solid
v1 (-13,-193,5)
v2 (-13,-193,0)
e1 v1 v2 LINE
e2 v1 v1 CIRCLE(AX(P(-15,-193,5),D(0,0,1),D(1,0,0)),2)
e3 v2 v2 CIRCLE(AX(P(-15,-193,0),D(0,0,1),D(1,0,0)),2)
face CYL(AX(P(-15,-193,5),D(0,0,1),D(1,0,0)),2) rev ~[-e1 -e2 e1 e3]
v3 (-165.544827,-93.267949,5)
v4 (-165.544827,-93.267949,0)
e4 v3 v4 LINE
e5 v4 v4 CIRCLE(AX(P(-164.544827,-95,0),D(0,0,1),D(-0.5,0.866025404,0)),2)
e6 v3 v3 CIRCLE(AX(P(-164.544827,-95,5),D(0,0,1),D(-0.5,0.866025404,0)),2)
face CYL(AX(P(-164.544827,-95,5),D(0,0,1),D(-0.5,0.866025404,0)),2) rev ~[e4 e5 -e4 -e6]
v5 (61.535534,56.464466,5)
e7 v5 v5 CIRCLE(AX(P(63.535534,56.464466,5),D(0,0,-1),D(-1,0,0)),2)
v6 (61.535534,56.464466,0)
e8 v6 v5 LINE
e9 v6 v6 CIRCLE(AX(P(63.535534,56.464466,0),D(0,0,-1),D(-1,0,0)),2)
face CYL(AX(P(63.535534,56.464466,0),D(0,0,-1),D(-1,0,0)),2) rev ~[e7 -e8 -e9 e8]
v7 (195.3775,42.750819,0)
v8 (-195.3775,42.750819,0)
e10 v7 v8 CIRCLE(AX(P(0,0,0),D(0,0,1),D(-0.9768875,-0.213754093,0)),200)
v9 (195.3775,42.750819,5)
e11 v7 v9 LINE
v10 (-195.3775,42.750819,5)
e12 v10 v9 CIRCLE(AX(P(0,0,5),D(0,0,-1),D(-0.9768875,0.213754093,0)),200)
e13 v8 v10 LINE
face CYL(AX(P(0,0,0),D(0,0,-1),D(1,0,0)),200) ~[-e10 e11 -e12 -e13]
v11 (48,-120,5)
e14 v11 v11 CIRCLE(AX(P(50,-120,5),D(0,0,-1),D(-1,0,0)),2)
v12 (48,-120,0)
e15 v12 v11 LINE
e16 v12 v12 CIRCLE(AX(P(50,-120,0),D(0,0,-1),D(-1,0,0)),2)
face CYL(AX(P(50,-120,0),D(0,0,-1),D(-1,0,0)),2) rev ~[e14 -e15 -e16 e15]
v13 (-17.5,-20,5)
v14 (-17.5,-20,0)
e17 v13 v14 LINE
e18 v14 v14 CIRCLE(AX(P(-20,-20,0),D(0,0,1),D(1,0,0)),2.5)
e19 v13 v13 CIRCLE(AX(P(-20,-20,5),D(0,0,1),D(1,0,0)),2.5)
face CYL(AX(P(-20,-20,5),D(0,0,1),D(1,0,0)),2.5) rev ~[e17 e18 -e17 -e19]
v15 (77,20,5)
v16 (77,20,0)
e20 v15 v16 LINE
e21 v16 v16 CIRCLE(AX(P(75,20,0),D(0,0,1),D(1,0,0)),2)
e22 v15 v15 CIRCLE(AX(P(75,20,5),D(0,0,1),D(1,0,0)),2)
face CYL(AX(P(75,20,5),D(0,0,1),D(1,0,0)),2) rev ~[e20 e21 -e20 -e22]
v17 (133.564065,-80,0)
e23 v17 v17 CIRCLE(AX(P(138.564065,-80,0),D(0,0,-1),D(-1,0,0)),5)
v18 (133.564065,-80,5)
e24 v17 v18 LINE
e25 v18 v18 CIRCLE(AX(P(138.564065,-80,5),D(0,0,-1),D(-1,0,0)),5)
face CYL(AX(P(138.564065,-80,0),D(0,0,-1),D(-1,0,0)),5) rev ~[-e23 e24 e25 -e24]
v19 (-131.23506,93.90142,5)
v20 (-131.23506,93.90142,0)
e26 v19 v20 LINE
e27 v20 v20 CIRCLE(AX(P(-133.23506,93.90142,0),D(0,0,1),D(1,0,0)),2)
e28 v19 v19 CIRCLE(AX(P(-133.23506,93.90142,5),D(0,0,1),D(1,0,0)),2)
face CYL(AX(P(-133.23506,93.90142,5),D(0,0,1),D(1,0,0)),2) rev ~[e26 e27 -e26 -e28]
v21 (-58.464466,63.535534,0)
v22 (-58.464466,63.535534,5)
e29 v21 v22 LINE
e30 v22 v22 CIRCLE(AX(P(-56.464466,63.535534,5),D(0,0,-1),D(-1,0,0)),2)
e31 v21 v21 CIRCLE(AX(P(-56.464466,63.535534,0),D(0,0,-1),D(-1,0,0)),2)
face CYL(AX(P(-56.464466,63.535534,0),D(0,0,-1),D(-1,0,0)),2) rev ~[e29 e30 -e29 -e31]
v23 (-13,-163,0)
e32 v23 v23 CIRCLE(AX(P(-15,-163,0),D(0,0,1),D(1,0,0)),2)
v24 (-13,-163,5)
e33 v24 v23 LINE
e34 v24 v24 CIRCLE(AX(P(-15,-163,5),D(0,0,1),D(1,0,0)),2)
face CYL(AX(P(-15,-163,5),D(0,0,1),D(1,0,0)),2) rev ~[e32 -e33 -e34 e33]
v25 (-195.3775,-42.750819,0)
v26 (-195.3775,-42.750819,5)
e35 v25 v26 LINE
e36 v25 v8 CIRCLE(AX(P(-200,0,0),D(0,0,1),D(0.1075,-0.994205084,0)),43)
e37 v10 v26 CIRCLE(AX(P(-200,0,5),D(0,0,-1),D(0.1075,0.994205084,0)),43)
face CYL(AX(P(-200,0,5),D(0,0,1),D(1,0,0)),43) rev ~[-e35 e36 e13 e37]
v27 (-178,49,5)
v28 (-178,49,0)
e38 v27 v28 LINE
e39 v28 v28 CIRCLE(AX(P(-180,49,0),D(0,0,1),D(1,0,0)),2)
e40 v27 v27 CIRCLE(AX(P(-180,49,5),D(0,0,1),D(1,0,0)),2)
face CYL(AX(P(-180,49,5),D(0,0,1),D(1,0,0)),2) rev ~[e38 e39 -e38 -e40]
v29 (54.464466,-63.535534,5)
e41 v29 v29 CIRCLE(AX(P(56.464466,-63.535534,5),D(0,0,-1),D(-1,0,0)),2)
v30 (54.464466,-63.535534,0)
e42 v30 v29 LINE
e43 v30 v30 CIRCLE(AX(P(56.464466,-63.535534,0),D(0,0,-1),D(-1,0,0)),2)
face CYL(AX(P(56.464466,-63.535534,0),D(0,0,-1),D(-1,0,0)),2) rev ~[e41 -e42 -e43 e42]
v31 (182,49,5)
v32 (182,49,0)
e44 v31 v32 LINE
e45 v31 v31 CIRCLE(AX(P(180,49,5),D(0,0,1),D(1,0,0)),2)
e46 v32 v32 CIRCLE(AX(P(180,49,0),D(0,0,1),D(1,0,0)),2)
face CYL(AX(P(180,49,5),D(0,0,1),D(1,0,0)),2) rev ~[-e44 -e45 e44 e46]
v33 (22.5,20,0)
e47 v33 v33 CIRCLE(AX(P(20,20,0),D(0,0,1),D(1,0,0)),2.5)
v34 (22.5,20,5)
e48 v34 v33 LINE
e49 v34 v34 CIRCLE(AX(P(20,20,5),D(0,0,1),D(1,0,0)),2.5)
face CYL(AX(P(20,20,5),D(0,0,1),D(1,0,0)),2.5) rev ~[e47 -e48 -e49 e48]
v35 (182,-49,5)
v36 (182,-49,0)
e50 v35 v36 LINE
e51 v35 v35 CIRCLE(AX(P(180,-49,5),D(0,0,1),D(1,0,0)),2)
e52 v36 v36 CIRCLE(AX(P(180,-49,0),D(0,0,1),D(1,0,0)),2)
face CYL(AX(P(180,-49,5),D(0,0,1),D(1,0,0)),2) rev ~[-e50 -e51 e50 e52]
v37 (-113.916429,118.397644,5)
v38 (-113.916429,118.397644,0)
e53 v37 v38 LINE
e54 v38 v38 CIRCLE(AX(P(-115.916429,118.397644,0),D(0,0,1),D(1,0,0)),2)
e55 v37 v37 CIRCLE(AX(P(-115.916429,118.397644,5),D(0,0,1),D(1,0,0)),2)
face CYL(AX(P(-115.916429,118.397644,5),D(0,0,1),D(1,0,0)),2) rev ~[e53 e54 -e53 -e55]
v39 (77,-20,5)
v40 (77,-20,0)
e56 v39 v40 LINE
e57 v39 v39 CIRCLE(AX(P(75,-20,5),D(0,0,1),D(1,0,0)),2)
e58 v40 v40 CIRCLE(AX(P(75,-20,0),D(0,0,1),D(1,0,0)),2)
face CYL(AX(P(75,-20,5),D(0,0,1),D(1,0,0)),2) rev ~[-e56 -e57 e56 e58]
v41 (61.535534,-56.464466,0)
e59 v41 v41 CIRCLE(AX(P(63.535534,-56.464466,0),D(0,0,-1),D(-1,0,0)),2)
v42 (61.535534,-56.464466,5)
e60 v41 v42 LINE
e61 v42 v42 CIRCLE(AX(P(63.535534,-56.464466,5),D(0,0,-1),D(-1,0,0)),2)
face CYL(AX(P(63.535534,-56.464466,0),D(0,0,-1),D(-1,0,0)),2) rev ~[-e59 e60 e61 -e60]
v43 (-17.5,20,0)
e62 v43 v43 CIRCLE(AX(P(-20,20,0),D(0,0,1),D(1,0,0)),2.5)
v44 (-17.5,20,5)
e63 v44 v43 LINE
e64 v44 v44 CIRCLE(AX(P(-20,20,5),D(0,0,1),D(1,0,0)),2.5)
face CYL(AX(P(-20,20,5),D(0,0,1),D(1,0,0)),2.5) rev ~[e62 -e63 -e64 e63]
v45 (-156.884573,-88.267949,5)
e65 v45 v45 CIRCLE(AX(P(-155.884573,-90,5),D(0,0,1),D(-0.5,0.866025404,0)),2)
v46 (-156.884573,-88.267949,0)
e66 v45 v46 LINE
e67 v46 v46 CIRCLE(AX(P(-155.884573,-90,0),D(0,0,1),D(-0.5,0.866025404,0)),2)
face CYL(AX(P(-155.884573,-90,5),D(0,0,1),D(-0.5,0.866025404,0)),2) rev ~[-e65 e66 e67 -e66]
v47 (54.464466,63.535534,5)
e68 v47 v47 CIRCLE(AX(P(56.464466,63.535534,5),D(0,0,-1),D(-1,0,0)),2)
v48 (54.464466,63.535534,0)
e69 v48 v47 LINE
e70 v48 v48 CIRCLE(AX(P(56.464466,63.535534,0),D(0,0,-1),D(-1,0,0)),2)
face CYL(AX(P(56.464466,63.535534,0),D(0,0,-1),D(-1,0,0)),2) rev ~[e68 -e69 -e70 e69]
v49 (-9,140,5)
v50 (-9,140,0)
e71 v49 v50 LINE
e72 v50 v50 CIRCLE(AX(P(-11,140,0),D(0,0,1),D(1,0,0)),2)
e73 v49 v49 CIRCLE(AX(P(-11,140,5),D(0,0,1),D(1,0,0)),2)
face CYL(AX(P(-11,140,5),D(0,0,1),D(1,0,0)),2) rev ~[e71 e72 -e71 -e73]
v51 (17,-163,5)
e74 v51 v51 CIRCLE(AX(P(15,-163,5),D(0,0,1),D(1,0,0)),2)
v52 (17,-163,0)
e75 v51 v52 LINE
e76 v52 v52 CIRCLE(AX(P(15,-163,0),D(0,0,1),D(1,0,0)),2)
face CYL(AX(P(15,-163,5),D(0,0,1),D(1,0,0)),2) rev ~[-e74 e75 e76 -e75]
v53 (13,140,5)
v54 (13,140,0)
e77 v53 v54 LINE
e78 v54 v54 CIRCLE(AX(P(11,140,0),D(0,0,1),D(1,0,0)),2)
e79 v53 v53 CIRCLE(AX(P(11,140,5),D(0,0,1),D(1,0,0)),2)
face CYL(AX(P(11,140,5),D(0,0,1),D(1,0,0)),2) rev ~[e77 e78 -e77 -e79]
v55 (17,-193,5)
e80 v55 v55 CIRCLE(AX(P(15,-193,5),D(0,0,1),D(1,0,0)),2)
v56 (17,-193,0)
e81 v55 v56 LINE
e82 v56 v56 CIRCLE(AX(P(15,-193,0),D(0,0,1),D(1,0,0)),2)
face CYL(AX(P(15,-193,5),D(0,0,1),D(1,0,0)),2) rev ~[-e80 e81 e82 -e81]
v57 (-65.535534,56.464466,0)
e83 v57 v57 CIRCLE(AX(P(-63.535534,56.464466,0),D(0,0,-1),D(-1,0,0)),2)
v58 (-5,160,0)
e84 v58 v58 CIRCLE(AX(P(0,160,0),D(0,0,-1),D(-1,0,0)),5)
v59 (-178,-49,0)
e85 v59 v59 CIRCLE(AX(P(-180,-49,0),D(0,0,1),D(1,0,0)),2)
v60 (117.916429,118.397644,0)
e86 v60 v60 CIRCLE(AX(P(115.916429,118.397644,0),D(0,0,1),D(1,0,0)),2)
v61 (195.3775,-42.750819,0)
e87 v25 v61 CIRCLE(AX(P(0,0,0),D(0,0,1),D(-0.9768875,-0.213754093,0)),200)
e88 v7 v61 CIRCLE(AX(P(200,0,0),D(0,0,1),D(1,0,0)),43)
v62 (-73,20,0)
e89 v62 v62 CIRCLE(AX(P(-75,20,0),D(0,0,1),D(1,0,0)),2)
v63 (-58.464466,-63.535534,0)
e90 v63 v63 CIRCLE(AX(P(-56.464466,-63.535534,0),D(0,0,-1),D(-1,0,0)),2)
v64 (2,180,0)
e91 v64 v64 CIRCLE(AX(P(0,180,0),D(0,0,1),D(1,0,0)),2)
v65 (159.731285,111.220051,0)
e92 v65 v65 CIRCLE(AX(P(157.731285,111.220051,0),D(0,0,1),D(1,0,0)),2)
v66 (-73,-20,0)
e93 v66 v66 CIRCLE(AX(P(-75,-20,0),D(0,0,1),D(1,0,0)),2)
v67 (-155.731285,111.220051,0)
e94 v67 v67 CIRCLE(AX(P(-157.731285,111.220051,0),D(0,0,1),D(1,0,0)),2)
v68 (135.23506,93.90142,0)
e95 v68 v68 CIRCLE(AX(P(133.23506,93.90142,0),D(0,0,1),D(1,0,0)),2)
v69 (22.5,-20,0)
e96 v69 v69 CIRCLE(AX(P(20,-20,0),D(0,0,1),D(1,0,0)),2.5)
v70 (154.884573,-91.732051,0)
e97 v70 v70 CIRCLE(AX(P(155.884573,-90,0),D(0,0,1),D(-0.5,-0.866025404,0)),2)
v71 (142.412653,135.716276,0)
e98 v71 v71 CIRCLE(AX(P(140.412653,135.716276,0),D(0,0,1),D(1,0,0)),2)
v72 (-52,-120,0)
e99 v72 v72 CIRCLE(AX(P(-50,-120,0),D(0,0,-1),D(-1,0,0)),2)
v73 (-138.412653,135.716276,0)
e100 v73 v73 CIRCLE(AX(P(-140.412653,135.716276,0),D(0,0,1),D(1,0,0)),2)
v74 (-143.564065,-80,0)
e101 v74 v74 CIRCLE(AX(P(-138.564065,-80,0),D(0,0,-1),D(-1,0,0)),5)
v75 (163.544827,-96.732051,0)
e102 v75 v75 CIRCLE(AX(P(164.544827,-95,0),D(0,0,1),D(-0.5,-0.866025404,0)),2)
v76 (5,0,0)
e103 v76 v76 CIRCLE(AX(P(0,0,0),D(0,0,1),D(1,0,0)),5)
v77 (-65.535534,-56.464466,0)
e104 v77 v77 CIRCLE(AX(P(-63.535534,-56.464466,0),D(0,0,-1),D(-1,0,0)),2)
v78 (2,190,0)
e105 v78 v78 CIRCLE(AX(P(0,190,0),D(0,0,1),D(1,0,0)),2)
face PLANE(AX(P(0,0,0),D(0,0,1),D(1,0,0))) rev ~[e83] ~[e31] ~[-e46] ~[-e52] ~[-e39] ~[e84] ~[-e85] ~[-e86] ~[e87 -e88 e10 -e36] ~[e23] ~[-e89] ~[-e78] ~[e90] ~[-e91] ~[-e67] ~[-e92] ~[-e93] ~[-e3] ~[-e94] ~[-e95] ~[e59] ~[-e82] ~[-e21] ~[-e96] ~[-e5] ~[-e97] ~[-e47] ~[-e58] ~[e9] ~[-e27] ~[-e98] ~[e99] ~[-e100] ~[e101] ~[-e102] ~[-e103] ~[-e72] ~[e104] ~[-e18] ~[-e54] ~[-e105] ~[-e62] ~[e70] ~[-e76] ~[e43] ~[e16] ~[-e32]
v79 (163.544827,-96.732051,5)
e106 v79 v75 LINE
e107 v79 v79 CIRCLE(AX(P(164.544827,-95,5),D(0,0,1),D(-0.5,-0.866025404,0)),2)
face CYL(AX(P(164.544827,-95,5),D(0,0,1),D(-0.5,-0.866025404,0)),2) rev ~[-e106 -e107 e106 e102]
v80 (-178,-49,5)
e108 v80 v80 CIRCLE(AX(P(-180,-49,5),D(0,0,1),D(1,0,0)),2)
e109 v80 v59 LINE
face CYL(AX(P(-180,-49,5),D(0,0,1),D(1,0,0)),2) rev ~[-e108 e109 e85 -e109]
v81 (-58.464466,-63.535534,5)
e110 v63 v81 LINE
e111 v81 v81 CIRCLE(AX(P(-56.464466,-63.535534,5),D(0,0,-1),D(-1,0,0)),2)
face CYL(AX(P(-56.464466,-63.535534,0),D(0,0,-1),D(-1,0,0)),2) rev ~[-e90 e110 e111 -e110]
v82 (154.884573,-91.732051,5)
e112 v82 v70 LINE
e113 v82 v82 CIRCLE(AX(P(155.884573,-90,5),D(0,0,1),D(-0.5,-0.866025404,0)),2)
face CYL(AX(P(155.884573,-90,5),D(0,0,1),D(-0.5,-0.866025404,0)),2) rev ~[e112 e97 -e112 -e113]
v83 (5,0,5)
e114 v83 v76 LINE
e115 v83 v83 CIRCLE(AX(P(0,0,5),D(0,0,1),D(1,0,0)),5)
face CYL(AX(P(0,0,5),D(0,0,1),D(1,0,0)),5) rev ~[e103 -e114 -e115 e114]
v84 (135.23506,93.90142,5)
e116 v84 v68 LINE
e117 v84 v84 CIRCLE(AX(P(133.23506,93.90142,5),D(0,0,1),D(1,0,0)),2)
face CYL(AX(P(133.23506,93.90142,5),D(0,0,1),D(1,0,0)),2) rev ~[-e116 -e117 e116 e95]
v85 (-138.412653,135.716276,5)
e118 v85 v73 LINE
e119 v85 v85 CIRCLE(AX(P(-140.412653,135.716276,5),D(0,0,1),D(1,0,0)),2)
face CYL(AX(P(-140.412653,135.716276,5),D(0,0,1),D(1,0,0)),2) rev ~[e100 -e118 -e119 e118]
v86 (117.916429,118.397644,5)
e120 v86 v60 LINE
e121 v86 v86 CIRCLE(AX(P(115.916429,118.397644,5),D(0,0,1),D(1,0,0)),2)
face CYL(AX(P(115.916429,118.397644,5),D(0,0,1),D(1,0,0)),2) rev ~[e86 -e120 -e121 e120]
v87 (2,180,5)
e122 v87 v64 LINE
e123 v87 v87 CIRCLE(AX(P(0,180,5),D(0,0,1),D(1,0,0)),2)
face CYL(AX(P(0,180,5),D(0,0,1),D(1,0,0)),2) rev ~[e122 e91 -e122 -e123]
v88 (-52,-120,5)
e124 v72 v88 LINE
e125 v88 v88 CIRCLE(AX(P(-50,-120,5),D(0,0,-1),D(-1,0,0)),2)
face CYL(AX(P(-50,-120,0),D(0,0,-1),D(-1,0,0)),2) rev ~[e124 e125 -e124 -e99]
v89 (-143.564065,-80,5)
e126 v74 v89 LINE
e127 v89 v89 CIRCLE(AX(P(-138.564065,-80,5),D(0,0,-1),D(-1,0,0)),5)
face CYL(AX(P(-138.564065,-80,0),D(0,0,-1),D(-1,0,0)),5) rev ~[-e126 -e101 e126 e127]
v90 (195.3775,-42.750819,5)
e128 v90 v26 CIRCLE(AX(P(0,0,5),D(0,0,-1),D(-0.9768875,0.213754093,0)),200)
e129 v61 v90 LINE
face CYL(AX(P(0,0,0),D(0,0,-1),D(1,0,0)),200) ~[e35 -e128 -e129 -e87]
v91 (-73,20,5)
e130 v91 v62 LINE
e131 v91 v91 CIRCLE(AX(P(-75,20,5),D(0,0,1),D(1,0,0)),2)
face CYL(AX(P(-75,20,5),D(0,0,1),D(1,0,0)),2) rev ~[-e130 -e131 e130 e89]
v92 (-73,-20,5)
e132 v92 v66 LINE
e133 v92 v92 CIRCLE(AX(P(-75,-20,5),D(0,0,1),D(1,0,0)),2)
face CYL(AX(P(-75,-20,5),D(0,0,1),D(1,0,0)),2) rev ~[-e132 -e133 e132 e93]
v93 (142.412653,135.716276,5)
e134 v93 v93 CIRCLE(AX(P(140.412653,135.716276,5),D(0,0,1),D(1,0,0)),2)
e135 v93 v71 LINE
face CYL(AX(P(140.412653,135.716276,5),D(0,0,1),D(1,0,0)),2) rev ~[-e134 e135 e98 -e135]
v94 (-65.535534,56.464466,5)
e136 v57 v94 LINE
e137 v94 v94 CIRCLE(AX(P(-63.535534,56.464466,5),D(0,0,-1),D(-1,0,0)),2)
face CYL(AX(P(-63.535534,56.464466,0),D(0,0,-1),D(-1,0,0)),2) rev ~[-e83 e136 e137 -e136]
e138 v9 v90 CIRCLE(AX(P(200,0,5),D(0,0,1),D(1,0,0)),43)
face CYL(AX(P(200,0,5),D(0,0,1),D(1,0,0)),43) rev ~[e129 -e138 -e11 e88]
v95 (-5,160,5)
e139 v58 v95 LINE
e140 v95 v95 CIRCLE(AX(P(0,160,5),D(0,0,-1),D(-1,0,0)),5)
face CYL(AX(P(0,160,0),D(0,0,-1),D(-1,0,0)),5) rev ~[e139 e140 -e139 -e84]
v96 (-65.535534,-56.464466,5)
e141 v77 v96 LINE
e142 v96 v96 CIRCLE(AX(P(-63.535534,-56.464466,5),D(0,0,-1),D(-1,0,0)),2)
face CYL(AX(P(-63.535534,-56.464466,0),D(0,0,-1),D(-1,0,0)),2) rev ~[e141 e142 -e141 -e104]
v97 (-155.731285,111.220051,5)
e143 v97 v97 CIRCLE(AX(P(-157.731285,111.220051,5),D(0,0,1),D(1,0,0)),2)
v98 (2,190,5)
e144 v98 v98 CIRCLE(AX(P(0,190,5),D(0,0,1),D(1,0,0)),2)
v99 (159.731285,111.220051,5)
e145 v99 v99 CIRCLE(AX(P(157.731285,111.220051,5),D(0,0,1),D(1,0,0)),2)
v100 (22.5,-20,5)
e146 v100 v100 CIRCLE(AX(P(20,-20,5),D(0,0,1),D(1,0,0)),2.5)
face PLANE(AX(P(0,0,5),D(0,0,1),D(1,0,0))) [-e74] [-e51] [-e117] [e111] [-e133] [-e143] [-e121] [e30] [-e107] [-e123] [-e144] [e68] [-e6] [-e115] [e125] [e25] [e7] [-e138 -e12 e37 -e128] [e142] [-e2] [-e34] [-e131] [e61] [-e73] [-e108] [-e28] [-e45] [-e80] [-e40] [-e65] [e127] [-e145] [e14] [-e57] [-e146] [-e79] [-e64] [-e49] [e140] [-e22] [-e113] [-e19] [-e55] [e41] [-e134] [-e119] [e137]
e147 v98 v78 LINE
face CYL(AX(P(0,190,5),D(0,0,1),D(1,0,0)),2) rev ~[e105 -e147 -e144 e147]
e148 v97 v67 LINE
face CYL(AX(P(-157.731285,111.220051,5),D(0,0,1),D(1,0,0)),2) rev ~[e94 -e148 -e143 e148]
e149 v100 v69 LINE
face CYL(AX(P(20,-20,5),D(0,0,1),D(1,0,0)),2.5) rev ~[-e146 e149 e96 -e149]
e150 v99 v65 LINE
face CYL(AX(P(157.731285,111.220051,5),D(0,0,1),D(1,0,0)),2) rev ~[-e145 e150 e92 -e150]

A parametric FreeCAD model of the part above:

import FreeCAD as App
import Part
import Sketcher
Q = App.Units.Quantity

doc = App.newDocument("Part")
body = doc.addObject("PartDesign::Body", "Body")

sketch1 = body.newObject("Sketcher::SketchObject", "Sketch")
sketch1.AttachmentSupport = (doc.getObject("XY_Plane"), [""])
sketch1.MapMode = "FlatFace"
sketch1.addGeometry(Part.Circle(App.Vector(0, 0, 0), App.Vector(0, 0, 1), 200), False)
sketch1.addConstraint(Sketcher.Constraint("Coincident", 0, 3, -1, 1))
sketch1.addConstraint(Sketcher.Constraint("Diameter", 0, Q("400 mm")))
pad1 = body.newObject("PartDesign::Pad", "Pad")
pad1.Profile = sketch1
pad1.Length = 5

sketch2 = body.newObject("Sketcher::SketchObject", "Sketch001")
sketch2.AttachmentSupport = (doc.getObject("XY_Plane"), [""])
sketch2.MapMode = "FlatFace"
sketch2.AttachmentOffset = App.Placement(App.Vector(0, 0, 5), App.Rotation())
sketch2.addGeometry(Part.Circle(App.Vector(0, 190, 0), App.Vector(0, 0, 1), 2), False)
sketch2.addGeometry(Part.Circle(App.Vector(0, 180, 0), App.Vector(0, 0, 1), 2), False)
sketch2.addConstraint(Sketcher.Constraint("Equal", 0, 1))
sketch2.addConstraint(Sketcher.Constraint("PointOnObject", 0, 3, -2))
sketch2.addConstraint(Sketcher.Constraint("PointOnObject", 1, 3, -2))
sketch2.addConstraint(Sketcher.Constraint("Diameter", 0, Q("4 mm")))
sketch2.addConstraint(Sketcher.Constraint("DistanceY", -1, 1, 0, 3, Q("190 mm")))
sketch2.addConstraint(Sketcher.Constraint("DistanceY", -1, 1, 1, 3, Q("180 mm")))
pocket1 = body.newObject("PartDesign::Pocket", "Pocket")
pocket1.Profile = sketch2
pocket1.Length = 5
doc.recompute()

polarpattern = body.newObject("PartDesign::PolarPattern", "PolarPattern")
polarpattern.Originals = [pocket1]
polarpattern.Axis = (doc.getObject("Z_Axis"), [""])
polarpattern.Angle = 360
polarpattern.Occurrences = 3
body.Tip = polarpattern

sketch3 = body.newObject("Sketcher::SketchObject", "Sketch002")
sketch3.AttachmentSupport = (doc.getObject("XY_Plane"), [""])
sketch3.MapMode = "FlatFace"
sketch3.AttachmentOffset = App.Placement(App.Vector(0, 0, 5), App.Rotation())
sketch3.addGeometry(Part.Circle(App.Vector(-200, 0, 0), App.Vector(0, 0, 1), 43), False)
sketch3.addConstraint(Sketcher.Constraint("PointOnObject", 0, 3, -1))
sketch3.addConstraint(Sketcher.Constraint("Diameter", 0, Q("86 mm")))
sketch3.addConstraint(Sketcher.Constraint("DistanceX", 0, 3, -1, 1, Q("200 mm")))
pocket2 = body.newObject("PartDesign::Pocket", "Pocket001")
pocket2.Profile = sketch3
pocket2.Type = "UpToFirst"

sketch4 = body.newObject("Sketcher::SketchObject", "Sketch003")
sketch4.AttachmentSupport = (doc.getObject("XY_Plane"), [""])
sketch4.MapMode = "FlatFace"
sketch4.AttachmentOffset = App.Placement(App.Vector(0, 0, 5), App.Rotation())
sketch4.addGeometry(Part.Circle(App.Vector(200, 0, 0), App.Vector(0, 0, 1), 43), False)
sketch4.addConstraint(Sketcher.Constraint("PointOnObject", 0, 3, -1))
sketch4.addConstraint(Sketcher.Constraint("Diameter", 0, Q("86 mm")))
sketch4.addConstraint(Sketcher.Constraint("DistanceX", -1, 1, 0, 3, Q("200 mm")))
pocket3 = body.newObject("PartDesign::Pocket", "Pocket002")
pocket3.Profile = sketch4
pocket3.Type = "UpToFirst"

sketch5 = body.newObject("Sketcher::SketchObject", "Sketch004")
sketch5.AttachmentSupport = (doc.getObject("XY_Plane"), [""])
sketch5.MapMode = "FlatFace"
sketch5.AttachmentOffset = App.Placement(App.Vector(0, 0, 5), App.Rotation())
sketch5.addGeometry(Part.Circle(App.Vector(180, 49, 0), App.Vector(0, 0, 1), 2), False)
sketch5.addConstraint(Sketcher.Constraint("Diameter", 0, Q("4 mm")))
sketch5.addConstraint(Sketcher.Constraint("DistanceX", -1, 1, 0, 3, Q("180 mm")))
sketch5.addConstraint(Sketcher.Constraint("DistanceY", -1, 1, 0, 3, Q("49 mm")))
pocket4 = body.newObject("PartDesign::Pocket", "Pocket003")
pocket4.Profile = sketch5
pocket4.Type = "UpToFirst"

sketch6 = body.newObject("Sketcher::SketchObject", "Sketch005")
sketch6.AttachmentSupport = (doc.getObject("XY_Plane"), [""])
sketch6.MapMode = "FlatFace"
sketch6.AttachmentOffset = App.Placement(App.Vector(0, 0, 5), App.Rotation())
sketch6.addGeometry(Part.Circle(App.Vector(180, -49, 0), App.Vector(0, 0, 1), 2), False)
sketch6.addConstraint(Sketcher.Constraint("Diameter", 0, Q("4 mm")))
sketch6.addConstraint(Sketcher.Constraint("DistanceX", -1, 1, 0, 3, Q("180 mm")))
sketch6.addConstraint(Sketcher.Constraint("DistanceY", 0, 3, -1, 1, Q("49 mm")))
pocket5 = body.newObject("PartDesign::Pocket", "Pocket004")
pocket5.Profile = sketch6
pocket5.Type = "UpToFirst"

sketch7 = body.newObject("Sketcher::SketchObject", "Sketch006")
sketch7.AttachmentSupport = (doc.getObject("XY_Plane"), [""])
sketch7.MapMode = "FlatFace"
sketch7.AttachmentOffset = App.Placement(App.Vector(0, 0, 5), App.Rotation())
sketch7.addGeometry(Part.Circle(App.Vector(-180, -49, 0), App.Vector(0, 0, 1), 2), False)
sketch7.addConstraint(Sketcher.Constraint("Diameter", 0, Q("4 mm")))
sketch7.addConstraint(Sketcher.Constraint("DistanceX", 0, 3, -1, 1, Q("180 mm")))
sketch7.addConstraint(Sketcher.Constraint("DistanceY", 0, 3, -1, 1, Q("49 mm")))
pocket6 = body.newObject("PartDesign::Pocket", "Pocket005")
pocket6.Profile = sketch7
pocket6.Type = "UpToFirst"

sketch8 = body.newObject("Sketcher::SketchObject", "Sketch007")
sketch8.AttachmentSupport = (doc.getObject("XY_Plane"), [""])
sketch8.MapMode = "FlatFace"
sketch8.AttachmentOffset = App.Placement(App.Vector(0, 0, 5), App.Rotation())
sketch8.addGeometry(Part.Circle(App.Vector(-180, 49, 0), App.Vector(0, 0, 1), 2), False)
sketch8.addConstraint(Sketcher.Constraint("Diameter", 0, Q("4 mm")))
sketch8.addConstraint(Sketcher.Constraint("DistanceX", 0, 3, -1, 1, Q("180 mm")))
sketch8.addConstraint(Sketcher.Constraint("DistanceY", -1, 1, 0, 3, Q("49 mm")))
pocket7 = body.newObject("PartDesign::Pocket", "Pocket006")
pocket7.Profile = sketch8
pocket7.Type = "UpToFirst"

sketch9 = body.newObject("Sketcher::SketchObject", "Sketch008")
sketch9.AttachmentSupport = (doc.getObject("XY_Plane"), [""])
sketch9.MapMode = "FlatFace"
sketch9.AttachmentOffset = App.Placement(App.Vector(0, 0, 5), App.Rotation())
sketch9.addGeometry(Part.Circle(App.Vector(-20, -20, 0), App.Vector(0, 0, 1), 2.5), False)
sketch9.addConstraint(Sketcher.Constraint("Diameter", 0, Q("5 mm")))
sketch9.addConstraint(Sketcher.Constraint("DistanceX", 0, 3, -1, 1, Q("20 mm")))
sketch9.addConstraint(Sketcher.Constraint("DistanceY", 0, 3, -1, 1, Q("20 mm")))
pocket8 = body.newObject("PartDesign::Pocket", "Pocket007")
pocket8.Profile = sketch9
pocket8.Type = "UpToFirst"

sketch10 = body.newObject("Sketcher::SketchObject", "Sketch009")
sketch10.AttachmentSupport = (doc.getObject("XY_Plane"), [""])
sketch10.MapMode = "FlatFace"
sketch10.AttachmentOffset = App.Placement(App.Vector(0, 0, 5), App.Rotation())
sketch10.addGeometry(Part.Circle(App.Vector(-20, 20, 0), App.Vector(0, 0, 1), 2.5), False)
sketch10.addConstraint(Sketcher.Constraint("Diameter", 0, Q("5 mm")))
sketch10.addConstraint(Sketcher.Constraint("DistanceX", 0, 3, -1, 1, Q("20 mm")))
sketch10.addConstraint(Sketcher.Constraint("DistanceY", -1, 1, 0, 3, Q("20 mm")))
pocket9 = body.newObject("PartDesign::Pocket", "Pocket008")
pocket9.Profile = sketch10
pocket9.Type = "UpToFirst"

sketch11 = body.newObject("Sketcher::SketchObject", "Sketch010")
sketch11.AttachmentSupport = (doc.getObject("XY_Plane"), [""])
sketch11.MapMode = "FlatFace"
sketch11.AttachmentOffset = App.Placement(App.Vector(0, 0, 5), App.Rotation())
sketch11.addGeometry(Part.Circle(App.Vector(0, 0, 0), App.Vector(0, 0, 1), 5), False)
sketch11.addConstraint(Sketcher.Constraint("Coincident", 0, 3, -1, 1))
sketch11.addConstraint(Sketcher.Constraint("Diameter", 0, Q("10 mm")))
pocket10 = body.newObject("PartDesign::Pocket", "Pocket009")
pocket10.Profile = sketch11
pocket10.Type = "UpToFirst"

sketch12 = body.newObject("Sketcher::SketchObject", "Sketch011")
sketch12.AttachmentSupport = (doc.getObject("XY_Plane"), [""])
sketch12.MapMode = "FlatFace"
sketch12.AttachmentOffset = App.Placement(App.Vector(0, 0, 5), App.Rotation())
sketch12.addGeometry(Part.Circle(App.Vector(20, -20, 0), App.Vector(0, 0, 1), 2.5), False)
sketch12.addConstraint(Sketcher.Constraint("Diameter", 0, Q("5 mm")))
sketch12.addConstraint(Sketcher.Constraint("DistanceX", -1, 1, 0, 3, Q("20 mm")))
sketch12.addConstraint(Sketcher.Constraint("DistanceY", 0, 3, -1, 1, Q("20 mm")))
pocket11 = body.newObject("PartDesign::Pocket", "Pocket010")
pocket11.Profile = sketch12
pocket11.Type = "UpToFirst"

sketch13 = body.newObject("Sketcher::SketchObject", "Sketch012")
sketch13.AttachmentSupport = (doc.getObject("XY_Plane"), [""])
sketch13.MapMode = "FlatFace"
sketch13.AttachmentOffset = App.Placement(App.Vector(0, 0, 5), App.Rotation())
sketch13.addGeometry(Part.Circle(App.Vector(20, 20, 0), App.Vector(0, 0, 1), 2.5), False)
sketch13.addConstraint(Sketcher.Constraint("Diameter", 0, Q("5 mm")))
sketch13.addConstraint(Sketcher.Constraint("DistanceX", -1, 1, 0, 3, Q("20 mm")))
sketch13.addConstraint(Sketcher.Constraint("DistanceY", -1, 1, 0, 3, Q("20 mm")))
pocket12 = body.newObject("PartDesign::Pocket", "Pocket011")
pocket12.Profile = sketch13
pocket12.Type = "UpToFirst"

sketch14 = body.newObject("Sketcher::SketchObject", "Sketch013")
sketch14.AttachmentSupport = (doc.getObject("XY_Plane"), [""])
sketch14.MapMode = "FlatFace"
sketch14.AttachmentOffset = App.Placement(App.Vector(0, 0, 5), App.Rotation())
sketch14.addGeometry(Part.Circle(App.Vector(-15, -193, 0), App.Vector(0, 0, 1), 2), False)
sketch14.addConstraint(Sketcher.Constraint("Diameter", 0, Q("4 mm")))
sketch14.addConstraint(Sketcher.Constraint("DistanceX", 0, 3, -1, 1, Q("15 mm")))
sketch14.addConstraint(Sketcher.Constraint("DistanceY", 0, 3, -1, 1, Q("193 mm")))
pocket13 = body.newObject("PartDesign::Pocket", "Pocket012")
pocket13.Profile = sketch14
pocket13.Type = "UpToFirst"

sketch15 = body.newObject("Sketcher::SketchObject", "Sketch014")
sketch15.AttachmentSupport = (doc.getObject("XY_Plane"), [""])
sketch15.MapMode = "FlatFace"
sketch15.AttachmentOffset = App.Placement(App.Vector(0, 0, 5), App.Rotation())
sketch15.addGeometry(Part.Circle(App.Vector(15, -193, 0), App.Vector(0, 0, 1), 2), False)
sketch15.addConstraint(Sketcher.Constraint("Diameter", 0, Q("4 mm")))
sketch15.addConstraint(Sketcher.Constraint("DistanceX", -1, 1, 0, 3, Q("15 mm")))
sketch15.addConstraint(Sketcher.Constraint("DistanceY", 0, 3, -1, 1, Q("193 mm")))
pocket14 = body.newObject("PartDesign::Pocket", "Pocket013")
pocket14.Profile = sketch15
pocket14.Type = "UpToFirst"

sketch16 = body.newObject("Sketcher::SketchObject", "Sketch015")
sketch16.AttachmentSupport = (doc.getObject("XY_Plane"), [""])
sketch16.MapMode = "FlatFace"
sketch16.AttachmentOffset = App.Placement(App.Vector(0, 0, 5), App.Rotation())
sketch16.addGeometry(Part.Circle(App.Vector(15, -163, 0), App.Vector(0, 0, 1), 2), False)
sketch16.addConstraint(Sketcher.Constraint("Diameter", 0, Q("4 mm")))
sketch16.addConstraint(Sketcher.Constraint("DistanceX", -1, 1, 0, 3, Q("15 mm")))
sketch16.addConstraint(Sketcher.Constraint("DistanceY", 0, 3, -1, 1, Q("163 mm")))
pocket15 = body.newObject("PartDesign::Pocket", "Pocket014")
pocket15.Profile = sketch16
pocket15.Type = "UpToFirst"

sketch17 = body.newObject("Sketcher::SketchObject", "Sketch016")
sketch17.AttachmentSupport = (doc.getObject("XY_Plane"), [""])
sketch17.MapMode = "FlatFace"
sketch17.AttachmentOffset = App.Placement(App.Vector(0, 0, 5), App.Rotation())
sketch17.addGeometry(Part.Circle(App.Vector(-15, -163, 0), App.Vector(0, 0, 1), 2), False)
sketch17.addConstraint(Sketcher.Constraint("Diameter", 0, Q("4 mm")))
sketch17.addConstraint(Sketcher.Constraint("DistanceX", 0, 3, -1, 1, Q("15 mm")))
sketch17.addConstraint(Sketcher.Constraint("DistanceY", 0, 3, -1, 1, Q("163 mm")))
pocket16 = body.newObject("PartDesign::Pocket", "Pocket015")
pocket16.Profile = sketch17
pocket16.Type = "UpToFirst"

sketch18 = body.newObject("Sketcher::SketchObject", "Sketch017")
sketch18.AttachmentSupport = (doc.getObject("XY_Plane"), [""])
sketch18.MapMode = "FlatFace"
sketch18.AttachmentOffset = App.Placement(App.Vector(0, 0, 5), App.Rotation())
sketch18.addGeometry(Part.Circle(App.Vector(133.23506, 93.90142, 0), App.Vector(0, 0, 1), 2), False)
sketch18.addConstraint(Sketcher.Constraint("Diameter", 0, Q("4 mm")))
sketch18.addConstraint(Sketcher.Constraint("DistanceX", -1, 1, 0, 3, Q("133.23506 mm")))
sketch18.addConstraint(Sketcher.Constraint("DistanceY", -1, 1, 0, 3, Q("93.90142 mm")))
pocket17 = body.newObject("PartDesign::Pocket", "Pocket016")
pocket17.Profile = sketch18
pocket17.Type = "UpToFirst"

sketch19 = body.newObject("Sketcher::SketchObject", "Sketch018")
sketch19.AttachmentSupport = (doc.getObject("XY_Plane"), [""])
sketch19.MapMode = "FlatFace"
sketch19.AttachmentOffset = App.Placement(App.Vector(0, 0, 5), App.Rotation())
sketch19.addGeometry(Part.Circle(App.Vector(115.916429, 118.397644, 0), App.Vector(0, 0, 1), 2), False)
sketch19.addConstraint(Sketcher.Constraint("Diameter", 0, Q("4 mm")))
sketch19.addConstraint(Sketcher.Constraint("DistanceX", -1, 1, 0, 3, Q("115.916429 mm")))
sketch19.addConstraint(Sketcher.Constraint("DistanceY", -1, 1, 0, 3, Q("118.397644 mm")))
pocket18 = body.newObject("PartDesign::Pocket", "Pocket017")
pocket18.Profile = sketch19
pocket18.Type = "UpToFirst"

sketch20 = body.newObject("Sketcher::SketchObject", "Sketch019")
sketch20.AttachmentSupport = (doc.getObject("XY_Plane"), [""])
sketch20.MapMode = "FlatFace"
sketch20.AttachmentOffset = App.Placement(App.Vector(0, 0, 5), App.Rotation())
sketch20.addGeometry(Part.Circle(App.Vector(140.412653, 135.716276, 0), App.Vector(0, 0, 1), 2), False)
sketch20.addConstraint(Sketcher.Constraint("Diameter", 0, Q("4 mm")))
sketch20.addConstraint(Sketcher.Constraint("DistanceX", -1, 1, 0, 3, Q("140.412653 mm")))
sketch20.addConstraint(Sketcher.Constraint("DistanceY", -1, 1, 0, 3, Q("135.716276 mm")))
pocket19 = body.newObject("PartDesign::Pocket", "Pocket018")
pocket19.Profile = sketch20
pocket19.Type = "UpToFirst"

sketch21 = body.newObject("Sketcher::SketchObject", "Sketch020")
sketch21.AttachmentSupport = (doc.getObject("XY_Plane"), [""])
sketch21.MapMode = "FlatFace"
sketch21.AttachmentOffset = App.Placement(App.Vector(0, 0, 5), App.Rotation())
sketch21.addGeometry(Part.Circle(App.Vector(157.731285, 111.220051, 0), App.Vector(0, 0, 1), 2), False)
sketch21.addConstraint(Sketcher.Constraint("Diameter", 0, Q("4 mm")))
sketch21.addConstraint(Sketcher.Constraint("DistanceY", -1, 1, 0, 3, Q("111.220051 mm")))
sketch21.addConstraint(Sketcher.Constraint("DistanceX", -1, 1, 0, 3, Q("157.731285 mm")))
pocket20 = body.newObject("PartDesign::Pocket", "Pocket019")
pocket20.Profile = sketch21
pocket20.Type = "UpToFirst"

sketch22 = body.newObject("Sketcher::SketchObject", "Sketch021")
sketch22.AttachmentSupport = (doc.getObject("XY_Plane"), [""])
sketch22.MapMode = "FlatFace"
sketch22.AttachmentOffset = App.Placement(App.Vector(0, 0, 5), App.Rotation())
sketch22.addGeometry(Part.Circle(App.Vector(-157.731285, 111.220051, 0), App.Vector(0, 0, 1), 2), False)
sketch22.addConstraint(Sketcher.Constraint("Diameter", 0, Q("4 mm")))
sketch22.addConstraint(Sketcher.Constraint("DistanceY", -1, 1, 0, 3, Q("111.220051 mm")))
sketch22.addConstraint(Sketcher.Constraint("DistanceX", 0, 3, -1, 1, Q("157.731285 mm")))
pocket21 = body.newObject("PartDesign::Pocket", "Pocket020")
pocket21.Profile = sketch22
pocket21.Type = "UpToFirst"

sketch23 = body.newObject("Sketcher::SketchObject", "Sketch022")
sketch23.AttachmentSupport = (doc.getObject("XY_Plane"), [""])
sketch23.MapMode = "FlatFace"
sketch23.AttachmentOffset = App.Placement(App.Vector(0, 0, 5), App.Rotation())
sketch23.addGeometry(Part.Circle(App.Vector(-133.23506, 93.90142, 0), App.Vector(0, 0, 1), 2), False)
sketch23.addConstraint(Sketcher.Constraint("Diameter", 0, Q("4 mm")))
sketch23.addConstraint(Sketcher.Constraint("DistanceX", 0, 3, -1, 1, Q("133.23506 mm")))
sketch23.addConstraint(Sketcher.Constraint("DistanceY", -1, 1, 0, 3, Q("93.90142 mm")))
pocket22 = body.newObject("PartDesign::Pocket", "Pocket021")
pocket22.Profile = sketch23
pocket22.Type = "UpToFirst"

sketch24 = body.newObject("Sketcher::SketchObject", "Sketch023")
sketch24.AttachmentSupport = (doc.getObject("XY_Plane"), [""])
sketch24.MapMode = "FlatFace"
sketch24.AttachmentOffset = App.Placement(App.Vector(0, 0, 5), App.Rotation())
sketch24.addGeometry(Part.Circle(App.Vector(-115.916429, 118.397644, 0), App.Vector(0, 0, 1), 2), False)
sketch24.addConstraint(Sketcher.Constraint("Diameter", 0, Q("4 mm")))
sketch24.addConstraint(Sketcher.Constraint("DistanceX", 0, 3, -1, 1, Q("115.916429 mm")))
sketch24.addConstraint(Sketcher.Constraint("DistanceY", -1, 1, 0, 3, Q("118.397644 mm")))
pocket23 = body.newObject("PartDesign::Pocket", "Pocket022")
pocket23.Profile = sketch24
pocket23.Type = "UpToFirst"

sketch25 = body.newObject("Sketcher::SketchObject", "Sketch024")
sketch25.AttachmentSupport = (doc.getObject("XY_Plane"), [""])
sketch25.MapMode = "FlatFace"
sketch25.AttachmentOffset = App.Placement(App.Vector(0, 0, 5), App.Rotation())
sketch25.addGeometry(Part.Circle(App.Vector(-140.412653, 135.716276, 0), App.Vector(0, 0, 1), 2), False)
sketch25.addConstraint(Sketcher.Constraint("Diameter", 0, Q("4 mm")))
sketch25.addConstraint(Sketcher.Constraint("DistanceX", 0, 3, -1, 1, Q("140.412653 mm")))
sketch25.addConstraint(Sketcher.Constraint("DistanceY", -1, 1, 0, 3, Q("135.716276 mm")))
pocket24 = body.newObject("PartDesign::Pocket", "Pocket023")
pocket24.Profile = sketch25
pocket24.Type = "UpToFirst"

sketch26 = body.newObject("Sketcher::SketchObject", "Sketch025")
sketch26.AttachmentSupport = (doc.getObject("XY_Plane"), [""])
sketch26.MapMode = "FlatFace"
sketch26.AttachmentOffset = App.Placement(App.Vector(0, 0, 5), App.Rotation())
sketch26.addGeometry(Part.Circle(App.Vector(-11, 140, 0), App.Vector(0, 0, 1), 2), False)
sketch26.addConstraint(Sketcher.Constraint("Diameter", 0, Q("4 mm")))
sketch26.addConstraint(Sketcher.Constraint("DistanceX", 0, 3, -1, 1, Q("11 mm")))
sketch26.addConstraint(Sketcher.Constraint("DistanceY", -1, 1, 0, 3, Q("140 mm")))
pocket25 = body.newObject("PartDesign::Pocket", "Pocket024")
pocket25.Profile = sketch26
pocket25.Type = "UpToFirst"

sketch27 = body.newObject("Sketcher::SketchObject", "Sketch026")
sketch27.AttachmentSupport = (doc.getObject("XY_Plane"), [""])
sketch27.MapMode = "FlatFace"
sketch27.AttachmentOffset = App.Placement(App.Vector(0, 0, 5), App.Rotation())
sketch27.addGeometry(Part.Circle(App.Vector(11, 140, 0), App.Vector(0, 0, 1), 2), False)
sketch27.addConstraint(Sketcher.Constraint("Diameter", 0, Q("4 mm")))
sketch27.addConstraint(Sketcher.Constraint("DistanceX", -1, 1, 0, 3, Q("11 mm")))
sketch27.addConstraint(Sketcher.Constraint("DistanceY", -1, 1, 0, 3, Q("140 mm")))
pocket26 = body.newObject("PartDesign::Pocket", "Pocket025")
pocket26.Profile = sketch27
pocket26.Type = "UpToFirst"

sketch28 = body.newObject("Sketcher::SketchObject", "Sketch027")
sketch28.AttachmentSupport = (doc.getObject("XY_Plane"), [""])
sketch28.MapMode = "FlatFace"
sketch28.AttachmentOffset = App.Placement(App.Vector(0, 0, 5), App.Rotation())
sketch28.addGeometry(Part.Circle(App.Vector(75, -20, 0), App.Vector(0, 0, 1), 2), False)
sketch28.addConstraint(Sketcher.Constraint("Diameter", 0, Q("4 mm")))
sketch28.addConstraint(Sketcher.Constraint("DistanceX", -1, 1, 0, 3, Q("75 mm")))
sketch28.addConstraint(Sketcher.Constraint("DistanceY", 0, 3, -1, 1, Q("20 mm")))
pocket27 = body.newObject("PartDesign::Pocket", "Pocket026")
pocket27.Profile = sketch28
pocket27.Type = "UpToFirst"

sketch29 = body.newObject("Sketcher::SketchObject", "Sketch028")
sketch29.AttachmentSupport = (doc.getObject("XY_Plane"), [""])
sketch29.MapMode = "FlatFace"
sketch29.AttachmentOffset = App.Placement(App.Vector(0, 0, 5), App.Rotation())
sketch29.addGeometry(Part.Circle(App.Vector(75, 20, 0), App.Vector(0, 0, 1), 2), False)
sketch29.addConstraint(Sketcher.Constraint("Diameter", 0, Q("4 mm")))
sketch29.addConstraint(Sketcher.Constraint("DistanceX", -1, 1, 0, 3, Q("75 mm")))
sketch29.addConstraint(Sketcher.Constraint("DistanceY", -1, 1, 0, 3, Q("20 mm")))
pocket28 = body.newObject("PartDesign::Pocket", "Pocket027")
pocket28.Profile = sketch29
pocket28.Type = "UpToFirst"

sketch30 = body.newObject("Sketcher::SketchObject", "Sketch029")
sketch30.AttachmentSupport = (doc.getObject("XY_Plane"), [""])
sketch30.MapMode = "FlatFace"
sketch30.AttachmentOffset = App.Placement(App.Vector(0, 0, 5), App.Rotation())
sketch30.addGeometry(Part.Circle(App.Vector(-75, -20, 0), App.Vector(0, 0, 1), 2), False)
sketch30.addConstraint(Sketcher.Constraint("Diameter", 0, Q("4 mm")))
sketch30.addConstraint(Sketcher.Constraint("DistanceX", 0, 3, -1, 1, Q("75 mm")))
sketch30.addConstraint(Sketcher.Constraint("DistanceY", 0, 3, -1, 1, Q("20 mm")))
pocket29 = body.newObject("PartDesign::Pocket", "Pocket028")
pocket29.Profile = sketch30
pocket29.Type = "UpToFirst"

sketch31 = body.newObject("Sketcher::SketchObject", "Sketch030")
sketch31.AttachmentSupport = (doc.getObject("XY_Plane"), [""])
sketch31.MapMode = "FlatFace"
sketch31.AttachmentOffset = App.Placement(App.Vector(0, 0, 5), App.Rotation())
sketch31.addGeometry(Part.Circle(App.Vector(-75, 20, 0), App.Vector(0, 0, 1), 2), False)
sketch31.addConstraint(Sketcher.Constraint("Diameter", 0, Q("4 mm")))
sketch31.addConstraint(Sketcher.Constraint("DistanceX", 0, 3, -1, 1, Q("75 mm")))
sketch31.addConstraint(Sketcher.Constraint("DistanceY", -1, 1, 0, 3, Q("20 mm")))
pocket30 = body.newObject("PartDesign::Pocket", "Pocket029")
pocket30.Profile = sketch31
pocket30.Type = "UpToFirst"

sketch32 = body.newObject("Sketcher::SketchObject", "Sketch031")
sketch32.AttachmentSupport = (doc.getObject("XY_Plane"), [""])
sketch32.MapMode = "FlatFace"
sketch32.addGeometry(Part.Circle(App.Vector(50, -120, 0), App.Vector(0, 0, 1), 2), False)
sketch32.addConstraint(Sketcher.Constraint("Diameter", 0, Q("4 mm")))
sketch32.addConstraint(Sketcher.Constraint("DistanceX", -1, 1, 0, 3, Q("50 mm")))
sketch32.addConstraint(Sketcher.Constraint("DistanceY", 0, 3, -1, 1, Q("120 mm")))
pocket31 = body.newObject("PartDesign::Pocket", "Pocket030")
pocket31.Profile = sketch32
pocket31.Type = "UpToFirst"
pocket31.Reversed = True

sketch33 = body.newObject("Sketcher::SketchObject", "Sketch032")
sketch33.AttachmentSupport = (doc.getObject("XY_Plane"), [""])
sketch33.MapMode = "FlatFace"
sketch33.addGeometry(Part.Circle(App.Vector(-50, -120, 0), App.Vector(0, 0, 1), 2), False)
sketch33.addConstraint(Sketcher.Constraint("Diameter", 0, Q("4 mm")))
sketch33.addConstraint(Sketcher.Constraint("DistanceX", 0, 3, -1, 1, Q("50 mm")))
sketch33.addConstraint(Sketcher.Constraint("DistanceY", 0, 3, -1, 1, Q("120 mm")))
pocket32 = body.newObject("PartDesign::Pocket", "Pocket031")
pocket32.Profile = sketch33
pocket32.Type = "UpToFirst"
pocket32.Reversed = True

sketch34 = body.newObject("Sketcher::SketchObject", "Sketch033")
sketch34.AttachmentSupport = (doc.getObject("XY_Plane"), [""])
sketch34.MapMode = "FlatFace"
sketch34.addGeometry(Part.Circle(App.Vector(63.535534, -56.464466, 0), App.Vector(0, 0, 1), 2), False)
sketch34.addConstraint(Sketcher.Constraint("Diameter", 0, Q("4 mm")))
sketch34.addConstraint(Sketcher.Constraint("DistanceX", -1, 1, 0, 3, Q("63.535534 mm")))
sketch34.addConstraint(Sketcher.Constraint("DistanceY", 0, 3, -1, 1, Q("56.464466 mm")))
pocket33 = body.newObject("PartDesign::Pocket", "Pocket032")
pocket33.Profile = sketch34
pocket33.Type = "UpToFirst"
pocket33.Reversed = True

sketch35 = body.newObject("Sketcher::SketchObject", "Sketch034")
sketch35.AttachmentSupport = (doc.getObject("XY_Plane"), [""])
sketch35.MapMode = "FlatFace"
sketch35.addGeometry(Part.Circle(App.Vector(56.464466, -63.535534, 0), App.Vector(0, 0, 1), 2), False)
sketch35.addConstraint(Sketcher.Constraint("Diameter", 0, Q("4 mm")))
sketch35.addConstraint(Sketcher.Constraint("DistanceX", -1, 1, 0, 3, Q("56.464466 mm")))
sketch35.addConstraint(Sketcher.Constraint("DistanceY", 0, 3, -1, 1, Q("63.535534 mm")))
pocket34 = body.newObject("PartDesign::Pocket", "Pocket033")
pocket34.Profile = sketch35
pocket34.Type = "UpToFirst"
pocket34.Reversed = True

sketch36 = body.newObject("Sketcher::SketchObject", "Sketch035")
sketch36.AttachmentSupport = (doc.getObject("XY_Plane"), [""])
sketch36.MapMode = "FlatFace"
sketch36.addGeometry(Part.Circle(App.Vector(-63.535534, -56.464466, 0), App.Vector(0, 0, 1), 2), False)
sketch36.addConstraint(Sketcher.Constraint("Diameter", 0, Q("4 mm")))
sketch36.addConstraint(Sketcher.Constraint("DistanceX", 0, 3, -1, 1, Q("63.535534 mm")))
sketch36.addConstraint(Sketcher.Constraint("DistanceY", 0, 3, -1, 1, Q("56.464466 mm")))
pocket35 = body.newObject("PartDesign::Pocket", "Pocket034")
pocket35.Profile = sketch36
pocket35.Type = "UpToFirst"
pocket35.Reversed = True

sketch37 = body.newObject("Sketcher::SketchObject", "Sketch036")
sketch37.AttachmentSupport = (doc.getObject("XY_Plane"), [""])
sketch37.MapMode = "FlatFace"
sketch37.addGeometry(Part.Circle(App.Vector(-56.464466, -63.535534, 0), App.Vector(0, 0, 1), 2), False)
sketch37.addConstraint(Sketcher.Constraint("Diameter", 0, Q("4 mm")))
sketch37.addConstraint(Sketcher.Constraint("DistanceX", 0, 3, -1, 1, Q("56.464466 mm")))
sketch37.addConstraint(Sketcher.Constraint("DistanceY", 0, 3, -1, 1, Q("63.535534 mm")))
pocket36 = body.newObject("PartDesign::Pocket", "Pocket035")
pocket36.Profile = sketch37
pocket36.Type = "UpToFirst"
pocket36.Reversed = True

sketch38 = body.newObject("Sketcher::SketchObject", "Sketch037")
sketch38.AttachmentSupport = (doc.getObject("XY_Plane"), [""])
sketch38.MapMode = "FlatFace"
sketch38.addGeometry(Part.Circle(App.Vector(-63.535534, 56.464466, 0), App.Vector(0, 0, 1), 2), False)
sketch38.addConstraint(Sketcher.Constraint("Diameter", 0, Q("4 mm")))
sketch38.addConstraint(Sketcher.Constraint("DistanceX", 0, 3, -1, 1, Q("63.535534 mm")))
sketch38.addConstraint(Sketcher.Constraint("DistanceY", -1, 1, 0, 3, Q("56.464466 mm")))
pocket37 = body.newObject("PartDesign::Pocket", "Pocket036")
pocket37.Profile = sketch38
pocket37.Type = "UpToFirst"
pocket37.Reversed = True

sketch39 = body.newObject("Sketcher::SketchObject", "Sketch038")
sketch39.AttachmentSupport = (doc.getObject("XY_Plane"), [""])
sketch39.MapMode = "FlatFace"
sketch39.addGeometry(Part.Circle(App.Vector(-56.464466, 63.535534, 0), App.Vector(0, 0, 1), 2), False)
sketch39.addConstraint(Sketcher.Constraint("Diameter", 0, Q("4 mm")))
sketch39.addConstraint(Sketcher.Constraint("DistanceX", 0, 3, -1, 1, Q("56.464466 mm")))
sketch39.addConstraint(Sketcher.Constraint("DistanceY", -1, 1, 0, 3, Q("63.535534 mm")))
pocket38 = body.newObject("PartDesign::Pocket", "Pocket037")
pocket38.Profile = sketch39
pocket38.Type = "UpToFirst"
pocket38.Reversed = True

sketch40 = body.newObject("Sketcher::SketchObject", "Sketch039")
sketch40.AttachmentSupport = (doc.getObject("XY_Plane"), [""])
sketch40.MapMode = "FlatFace"
sketch40.addGeometry(Part.Circle(App.Vector(56.464466, 63.535534, 0), App.Vector(0, 0, 1), 2), False)
sketch40.addConstraint(Sketcher.Constraint("Diameter", 0, Q("4 mm")))
sketch40.addConstraint(Sketcher.Constraint("DistanceX", -1, 1, 0, 3, Q("56.464466 mm")))
sketch40.addConstraint(Sketcher.Constraint("DistanceY", -1, 1, 0, 3, Q("63.535534 mm")))
pocket39 = body.newObject("PartDesign::Pocket", "Pocket038")
pocket39.Profile = sketch40
pocket39.Type = "UpToFirst"
pocket39.Reversed = True

sketch41 = body.newObject("Sketcher::SketchObject", "Sketch040")
sketch41.AttachmentSupport = (doc.getObject("XY_Plane"), [""])
sketch41.MapMode = "FlatFace"
sketch41.addGeometry(Part.Circle(App.Vector(63.535534, 56.464466, 0), App.Vector(0, 0, 1), 2), False)
sketch41.addConstraint(Sketcher.Constraint("Diameter", 0, Q("4 mm")))
sketch41.addConstraint(Sketcher.Constraint("DistanceX", -1, 1, 0, 3, Q("63.535534 mm")))
sketch41.addConstraint(Sketcher.Constraint("DistanceY", -1, 1, 0, 3, Q("56.464466 mm")))
pocket40 = body.newObject("PartDesign::Pocket", "Pocket039")
pocket40.Profile = sketch41
pocket40.Type = "UpToFirst"
pocket40.Reversed = True

sketch42 = body.newObject("Sketcher::SketchObject", "Sketch041")
sketch42.AttachmentSupport = (doc.getObject("XY_Plane"), [""])
sketch42.MapMode = "FlatFace"
sketch42.addGeometry(Part.Circle(App.Vector(138.564065, -80, 0), App.Vector(0, 0, 1), 5), False)
sketch42.addConstraint(Sketcher.Constraint("Diameter", 0, Q("10 mm")))
sketch42.addConstraint(Sketcher.Constraint("DistanceY", 0, 3, -1, 1, Q("80 mm")))
sketch42.addConstraint(Sketcher.Constraint("DistanceX", -1, 1, 0, 3, Q("138.564065 mm")))
pocket41 = body.newObject("PartDesign::Pocket", "Pocket040")
pocket41.Profile = sketch42
pocket41.Type = "UpToFirst"
pocket41.Reversed = True

sketch43 = body.newObject("Sketcher::SketchObject", "Sketch042")
sketch43.AttachmentSupport = (doc.getObject("XY_Plane"), [""])
sketch43.MapMode = "FlatFace"
sketch43.addGeometry(Part.Circle(App.Vector(-138.564065, -80, 0), App.Vector(0, 0, 1), 5), False)
sketch43.addConstraint(Sketcher.Constraint("Diameter", 0, Q("10 mm")))
sketch43.addConstraint(Sketcher.Constraint("DistanceY", 0, 3, -1, 1, Q("80 mm")))
sketch43.addConstraint(Sketcher.Constraint("DistanceX", 0, 3, -1, 1, Q("138.564065 mm")))
pocket42 = body.newObject("PartDesign::Pocket", "Pocket041")
pocket42.Profile = sketch43
pocket42.Type = "UpToFirst"
pocket42.Reversed = True

sketch44 = body.newObject("Sketcher::SketchObject", "Sketch043")
sketch44.AttachmentSupport = (doc.getObject("XY_Plane"), [""])
sketch44.MapMode = "FlatFace"
sketch44.addGeometry(Part.Circle(App.Vector(0, 160, 0), App.Vector(0, 0, 1), 5), False)
sketch44.addConstraint(Sketcher.Constraint("PointOnObject", 0, 3, -2))
sketch44.addConstraint(Sketcher.Constraint("Diameter", 0, Q("10 mm")))
sketch44.addConstraint(Sketcher.Constraint("DistanceY", -1, 1, 0, 3, Q("160 mm")))
pocket43 = body.newObject("PartDesign::Pocket", "Pocket042")
pocket43.Profile = sketch44
pocket43.Type = "UpToFirst"
pocket43.Reversed = True

doc.recompute()
